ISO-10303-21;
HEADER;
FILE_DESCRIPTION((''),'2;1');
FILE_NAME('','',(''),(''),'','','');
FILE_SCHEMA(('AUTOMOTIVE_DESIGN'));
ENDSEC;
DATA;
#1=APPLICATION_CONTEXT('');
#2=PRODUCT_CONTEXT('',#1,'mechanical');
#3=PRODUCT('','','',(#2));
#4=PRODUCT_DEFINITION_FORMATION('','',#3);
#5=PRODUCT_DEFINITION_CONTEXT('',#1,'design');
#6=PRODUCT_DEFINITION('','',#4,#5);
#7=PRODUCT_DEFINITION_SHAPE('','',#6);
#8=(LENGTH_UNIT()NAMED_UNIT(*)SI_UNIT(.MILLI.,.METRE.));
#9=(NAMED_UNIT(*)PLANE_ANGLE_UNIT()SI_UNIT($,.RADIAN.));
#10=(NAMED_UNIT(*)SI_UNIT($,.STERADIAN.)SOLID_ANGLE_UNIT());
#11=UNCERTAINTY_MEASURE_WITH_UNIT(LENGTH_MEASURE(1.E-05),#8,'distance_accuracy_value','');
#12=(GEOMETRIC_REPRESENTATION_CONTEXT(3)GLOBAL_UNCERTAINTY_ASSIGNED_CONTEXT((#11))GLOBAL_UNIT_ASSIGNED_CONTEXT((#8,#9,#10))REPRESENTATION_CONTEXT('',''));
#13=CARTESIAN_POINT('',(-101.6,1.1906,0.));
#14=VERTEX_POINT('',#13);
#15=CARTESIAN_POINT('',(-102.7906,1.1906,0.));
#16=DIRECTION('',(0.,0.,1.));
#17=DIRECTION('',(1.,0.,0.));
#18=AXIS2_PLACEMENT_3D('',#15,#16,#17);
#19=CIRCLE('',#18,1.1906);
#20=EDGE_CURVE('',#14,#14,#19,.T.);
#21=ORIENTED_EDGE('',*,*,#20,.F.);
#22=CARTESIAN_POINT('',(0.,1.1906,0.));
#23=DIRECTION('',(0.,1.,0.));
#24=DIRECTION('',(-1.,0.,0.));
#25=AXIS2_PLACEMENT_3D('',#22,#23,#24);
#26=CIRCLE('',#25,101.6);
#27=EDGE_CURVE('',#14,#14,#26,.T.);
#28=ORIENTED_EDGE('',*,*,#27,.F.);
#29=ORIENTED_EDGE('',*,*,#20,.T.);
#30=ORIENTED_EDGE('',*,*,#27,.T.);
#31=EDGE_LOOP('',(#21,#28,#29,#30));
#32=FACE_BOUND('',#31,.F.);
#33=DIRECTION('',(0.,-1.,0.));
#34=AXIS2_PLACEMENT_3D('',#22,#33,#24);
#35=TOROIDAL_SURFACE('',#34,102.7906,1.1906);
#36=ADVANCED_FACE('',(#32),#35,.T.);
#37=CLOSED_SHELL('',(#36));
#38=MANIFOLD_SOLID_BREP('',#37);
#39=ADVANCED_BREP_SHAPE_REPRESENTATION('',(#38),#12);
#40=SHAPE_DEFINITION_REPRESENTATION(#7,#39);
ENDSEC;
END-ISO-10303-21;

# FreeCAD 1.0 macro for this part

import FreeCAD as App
import Part
import Sketcher

V = App.Vector
Q = App.Units.Quantity

doc = App.newDocument("Part")
body = doc.addObject("PartDesign::Body", "Body")

# Sketch on XY plane
sketch1 = body.newObject("Sketcher::SketchObject", "Sketch")
sketch1.AttachmentSupport = (doc.getObject("XY_Plane"), [""])
sketch1.MapMode = "FlatFace"
sketch1.addGeometry(Part.Circle(V(-102.7906, 1.1906, 0), V(0, 0, 1), 1.1906), False)
sketch1.addConstraint(Sketcher.Constraint("Diameter", 0, Q("0.093748 in")))
sketch1.addConstraint(Sketcher.Constraint("DistanceX", 0, 3, -1, 1, Q("4.046874 in")))
sketch1.addConstraint(Sketcher.Constraint("DistanceY", -1, 1, 0, 3, Q("0.046874 in")))
revolution = body.newObject("PartDesign::Revolution", "Revolution")
revolution.Profile = sketch1
revolution.ReferenceAxis = (sketch1, ["V_Axis"])
revolution.Angle = 360

doc.recompute()
